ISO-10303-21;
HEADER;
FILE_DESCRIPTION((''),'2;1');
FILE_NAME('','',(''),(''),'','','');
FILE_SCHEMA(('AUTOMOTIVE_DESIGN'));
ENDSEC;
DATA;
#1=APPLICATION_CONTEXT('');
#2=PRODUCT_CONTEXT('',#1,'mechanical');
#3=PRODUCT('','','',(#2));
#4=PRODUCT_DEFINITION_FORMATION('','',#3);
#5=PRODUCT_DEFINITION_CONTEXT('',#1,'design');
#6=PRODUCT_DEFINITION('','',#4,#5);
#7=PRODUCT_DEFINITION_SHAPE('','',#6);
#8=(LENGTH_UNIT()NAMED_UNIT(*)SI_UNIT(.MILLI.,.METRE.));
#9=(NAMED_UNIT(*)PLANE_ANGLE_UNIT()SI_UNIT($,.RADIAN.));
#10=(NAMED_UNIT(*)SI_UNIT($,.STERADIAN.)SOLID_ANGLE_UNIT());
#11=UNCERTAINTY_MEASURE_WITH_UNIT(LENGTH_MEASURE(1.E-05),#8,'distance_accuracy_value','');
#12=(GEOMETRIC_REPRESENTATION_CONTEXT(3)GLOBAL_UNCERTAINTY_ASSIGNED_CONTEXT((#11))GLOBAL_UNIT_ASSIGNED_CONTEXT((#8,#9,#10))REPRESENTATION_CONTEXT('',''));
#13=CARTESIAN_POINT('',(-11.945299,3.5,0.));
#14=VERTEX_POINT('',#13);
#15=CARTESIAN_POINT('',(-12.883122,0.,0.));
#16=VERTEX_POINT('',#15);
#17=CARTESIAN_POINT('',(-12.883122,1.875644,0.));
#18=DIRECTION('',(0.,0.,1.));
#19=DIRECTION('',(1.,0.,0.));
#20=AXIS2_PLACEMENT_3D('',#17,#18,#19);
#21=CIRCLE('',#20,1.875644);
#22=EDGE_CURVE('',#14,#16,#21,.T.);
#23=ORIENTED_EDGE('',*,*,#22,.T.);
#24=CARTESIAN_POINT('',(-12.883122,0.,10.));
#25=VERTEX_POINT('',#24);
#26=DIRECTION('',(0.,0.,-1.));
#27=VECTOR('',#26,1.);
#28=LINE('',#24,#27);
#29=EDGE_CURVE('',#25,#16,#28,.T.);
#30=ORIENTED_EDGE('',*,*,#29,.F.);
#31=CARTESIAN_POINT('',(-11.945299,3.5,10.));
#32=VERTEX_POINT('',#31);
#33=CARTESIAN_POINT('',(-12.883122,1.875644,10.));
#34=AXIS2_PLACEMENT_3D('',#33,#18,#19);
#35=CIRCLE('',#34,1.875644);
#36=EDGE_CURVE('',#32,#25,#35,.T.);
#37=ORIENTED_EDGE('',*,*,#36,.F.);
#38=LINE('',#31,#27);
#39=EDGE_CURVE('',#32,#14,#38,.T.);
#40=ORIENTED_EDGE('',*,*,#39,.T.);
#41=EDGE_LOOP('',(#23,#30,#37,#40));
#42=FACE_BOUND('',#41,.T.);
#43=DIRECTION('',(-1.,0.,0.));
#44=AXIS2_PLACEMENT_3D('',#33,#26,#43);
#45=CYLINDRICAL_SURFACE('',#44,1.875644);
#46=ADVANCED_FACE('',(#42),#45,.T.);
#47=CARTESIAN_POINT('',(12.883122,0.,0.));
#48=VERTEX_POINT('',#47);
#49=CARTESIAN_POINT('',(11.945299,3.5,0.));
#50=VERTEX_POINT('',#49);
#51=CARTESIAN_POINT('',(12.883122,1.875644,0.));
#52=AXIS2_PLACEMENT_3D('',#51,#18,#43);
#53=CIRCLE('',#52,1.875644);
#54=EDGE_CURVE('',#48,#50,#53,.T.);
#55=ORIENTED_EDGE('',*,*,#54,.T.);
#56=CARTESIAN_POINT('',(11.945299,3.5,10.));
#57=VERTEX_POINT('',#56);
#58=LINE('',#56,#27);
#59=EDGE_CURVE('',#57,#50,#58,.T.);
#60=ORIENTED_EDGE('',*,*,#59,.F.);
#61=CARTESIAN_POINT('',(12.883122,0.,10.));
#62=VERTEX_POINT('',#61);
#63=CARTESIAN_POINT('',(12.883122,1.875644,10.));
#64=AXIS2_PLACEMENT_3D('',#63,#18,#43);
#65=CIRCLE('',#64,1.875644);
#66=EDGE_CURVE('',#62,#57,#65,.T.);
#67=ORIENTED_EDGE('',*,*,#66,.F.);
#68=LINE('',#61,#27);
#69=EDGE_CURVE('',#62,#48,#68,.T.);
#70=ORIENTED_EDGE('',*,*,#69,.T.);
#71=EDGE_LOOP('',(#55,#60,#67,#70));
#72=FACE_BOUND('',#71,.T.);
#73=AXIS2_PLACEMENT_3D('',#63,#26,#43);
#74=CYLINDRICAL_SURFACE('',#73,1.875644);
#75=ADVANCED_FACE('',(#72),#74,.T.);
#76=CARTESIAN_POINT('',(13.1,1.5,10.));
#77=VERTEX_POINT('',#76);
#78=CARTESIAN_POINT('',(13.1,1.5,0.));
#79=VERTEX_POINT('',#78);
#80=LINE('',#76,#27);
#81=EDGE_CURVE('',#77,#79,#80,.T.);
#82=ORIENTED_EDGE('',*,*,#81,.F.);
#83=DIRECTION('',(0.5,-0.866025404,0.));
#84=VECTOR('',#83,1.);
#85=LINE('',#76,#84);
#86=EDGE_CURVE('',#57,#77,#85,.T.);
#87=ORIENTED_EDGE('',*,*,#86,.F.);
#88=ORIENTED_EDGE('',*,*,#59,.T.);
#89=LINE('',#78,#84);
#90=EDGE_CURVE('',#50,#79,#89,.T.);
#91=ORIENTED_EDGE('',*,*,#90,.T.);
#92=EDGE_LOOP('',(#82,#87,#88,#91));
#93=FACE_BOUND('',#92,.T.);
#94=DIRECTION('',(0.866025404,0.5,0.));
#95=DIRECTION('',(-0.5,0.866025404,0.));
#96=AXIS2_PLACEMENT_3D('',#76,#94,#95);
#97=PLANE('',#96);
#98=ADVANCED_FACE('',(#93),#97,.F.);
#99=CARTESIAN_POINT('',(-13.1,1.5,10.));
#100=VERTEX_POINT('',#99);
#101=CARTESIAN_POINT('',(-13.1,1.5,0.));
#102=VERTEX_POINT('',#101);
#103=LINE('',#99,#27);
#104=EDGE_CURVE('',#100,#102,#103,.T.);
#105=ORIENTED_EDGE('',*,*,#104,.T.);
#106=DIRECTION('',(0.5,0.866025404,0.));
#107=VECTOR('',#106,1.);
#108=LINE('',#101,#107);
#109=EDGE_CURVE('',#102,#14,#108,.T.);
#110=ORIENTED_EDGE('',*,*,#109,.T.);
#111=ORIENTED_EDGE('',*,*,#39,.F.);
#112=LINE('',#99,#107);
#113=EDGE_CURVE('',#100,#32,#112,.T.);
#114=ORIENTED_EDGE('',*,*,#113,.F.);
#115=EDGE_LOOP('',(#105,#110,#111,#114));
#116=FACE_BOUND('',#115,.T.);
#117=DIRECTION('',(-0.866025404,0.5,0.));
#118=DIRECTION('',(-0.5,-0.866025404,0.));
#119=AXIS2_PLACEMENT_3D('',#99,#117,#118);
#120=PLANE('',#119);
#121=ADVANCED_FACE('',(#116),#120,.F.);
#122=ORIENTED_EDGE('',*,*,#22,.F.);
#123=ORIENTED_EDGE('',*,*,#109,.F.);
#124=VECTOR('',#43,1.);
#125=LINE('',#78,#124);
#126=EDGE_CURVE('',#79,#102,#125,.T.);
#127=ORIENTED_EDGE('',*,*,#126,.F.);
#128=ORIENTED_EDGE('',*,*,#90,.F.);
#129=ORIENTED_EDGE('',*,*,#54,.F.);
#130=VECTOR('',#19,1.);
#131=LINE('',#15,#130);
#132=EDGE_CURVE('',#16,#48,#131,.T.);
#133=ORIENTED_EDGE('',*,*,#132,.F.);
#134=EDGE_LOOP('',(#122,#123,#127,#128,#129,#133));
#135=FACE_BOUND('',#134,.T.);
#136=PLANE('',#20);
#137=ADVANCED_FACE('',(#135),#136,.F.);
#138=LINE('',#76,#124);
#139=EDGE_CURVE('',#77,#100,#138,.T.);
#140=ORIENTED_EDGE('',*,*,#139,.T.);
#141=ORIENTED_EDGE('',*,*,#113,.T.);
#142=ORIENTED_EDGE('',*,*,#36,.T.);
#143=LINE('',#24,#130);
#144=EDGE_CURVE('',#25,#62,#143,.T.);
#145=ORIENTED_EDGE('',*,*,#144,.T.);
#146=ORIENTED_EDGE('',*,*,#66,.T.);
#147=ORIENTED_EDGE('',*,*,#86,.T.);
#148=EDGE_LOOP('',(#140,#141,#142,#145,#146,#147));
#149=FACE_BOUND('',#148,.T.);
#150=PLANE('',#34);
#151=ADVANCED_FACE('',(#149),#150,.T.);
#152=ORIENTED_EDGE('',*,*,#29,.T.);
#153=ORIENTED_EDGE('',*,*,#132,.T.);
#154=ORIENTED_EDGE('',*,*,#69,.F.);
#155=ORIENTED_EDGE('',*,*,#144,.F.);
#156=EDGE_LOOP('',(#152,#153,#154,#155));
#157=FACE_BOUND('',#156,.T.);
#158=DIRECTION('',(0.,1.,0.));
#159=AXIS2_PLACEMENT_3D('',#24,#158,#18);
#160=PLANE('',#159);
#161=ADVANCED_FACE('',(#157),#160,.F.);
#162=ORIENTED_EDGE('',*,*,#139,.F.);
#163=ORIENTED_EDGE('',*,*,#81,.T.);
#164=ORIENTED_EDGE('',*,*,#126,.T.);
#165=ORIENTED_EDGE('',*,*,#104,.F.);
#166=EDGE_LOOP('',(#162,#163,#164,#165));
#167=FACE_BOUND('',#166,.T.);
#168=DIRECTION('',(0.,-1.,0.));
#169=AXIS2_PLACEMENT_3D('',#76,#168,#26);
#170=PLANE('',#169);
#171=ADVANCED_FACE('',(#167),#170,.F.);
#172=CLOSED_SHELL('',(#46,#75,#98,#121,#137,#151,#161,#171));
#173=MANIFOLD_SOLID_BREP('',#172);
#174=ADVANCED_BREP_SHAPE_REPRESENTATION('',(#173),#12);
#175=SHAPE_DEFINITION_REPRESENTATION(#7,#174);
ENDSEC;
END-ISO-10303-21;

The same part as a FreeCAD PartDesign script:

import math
import FreeCAD as App
import Part
import Sketcher
from FreeCAD import Vector
Q = App.Units.Quantity

doc = App.newDocument("Part")
body = doc.addObject("PartDesign::Body", "Body")

# Sketch on XY plane
sketch1 = body.newObject("Sketcher::SketchObject", "Sketch")
sketch1.AttachmentSupport = (doc.getObject("XY_Plane"), [""])
sketch1.MapMode = "FlatFace"
sketch1.addGeometry([
    Part.LineSegment(Vector(11.9, 3.5, 0), Vector(13.1, 1.5, 0)),  # 0
    Part.LineSegment(Vector(13.1, 1.5, 0), Vector(-13.1, 1.5, 0)),  # 1
    Part.LineSegment(Vector(-13.1, 1.5, 0), Vector(-11.9, 3.5, 0)),  # 2
    Part.ArcOfCircle(Part.Circle(Vector(-12.9, 1.9, 0), Vector(0, 0, 1), 1.9), math.radians(60), math.radians(270)),  # 3
    Part.LineSegment(Vector(-12.9, 0, 0), Vector(12.9, 0, 0)),  # 4
    Part.ArcOfCircle(Part.Circle(Vector(12.9, 1.9, 0), Vector(0, 0, 1), 1.9), math.radians(-90), math.radians(120)),  # 5
], False)
sketch1.addConstraint([
    Sketcher.Constraint("Coincident", 0, 2, 1, 1),
    Sketcher.Constraint("Coincident", 1, 2, 2, 1),
    Sketcher.Constraint("Coincident", 2, 2, 3, 1),
    Sketcher.Constraint("Tangent", 3, 2, 4, 1),
    Sketcher.Constraint("Tangent", 4, 2, 5, 1),
    Sketcher.Constraint("Coincident", 5, 2, 0, 1),
    Sketcher.Constraint("Horizontal", 1),
    Sketcher.Constraint("Horizontal", 4),
    Sketcher.Constraint("Equal", 3, 5),
    Sketcher.Constraint("Symmetric", 3, 2, 4, 2, -1, 1),
    Sketcher.Constraint("Horizontal", 2, 2, 5, 2),
    Sketcher.Constraint("Equal", 0, 2),
    Sketcher.Constraint("Angle", 0, Q("-60 deg")),
    Sketcher.Constraint("DistanceX", 1, 2, 1, 1, Q("26.2 mm")),
    Sketcher.Constraint("DistanceY", 1, 2, 2, 2, Q("2 mm")),
    Sketcher.Constraint("DistanceY", -1, 1, 0, 2, Q("1.5 mm")),
    Sketcher.Constraint("Radius", 3, Q("1.875644 mm")),
])
pad1 = body.newObject("PartDesign::Pad", "Pad")
pad1.Profile = sketch1
pad1.Length = 10

doc.recompute()
